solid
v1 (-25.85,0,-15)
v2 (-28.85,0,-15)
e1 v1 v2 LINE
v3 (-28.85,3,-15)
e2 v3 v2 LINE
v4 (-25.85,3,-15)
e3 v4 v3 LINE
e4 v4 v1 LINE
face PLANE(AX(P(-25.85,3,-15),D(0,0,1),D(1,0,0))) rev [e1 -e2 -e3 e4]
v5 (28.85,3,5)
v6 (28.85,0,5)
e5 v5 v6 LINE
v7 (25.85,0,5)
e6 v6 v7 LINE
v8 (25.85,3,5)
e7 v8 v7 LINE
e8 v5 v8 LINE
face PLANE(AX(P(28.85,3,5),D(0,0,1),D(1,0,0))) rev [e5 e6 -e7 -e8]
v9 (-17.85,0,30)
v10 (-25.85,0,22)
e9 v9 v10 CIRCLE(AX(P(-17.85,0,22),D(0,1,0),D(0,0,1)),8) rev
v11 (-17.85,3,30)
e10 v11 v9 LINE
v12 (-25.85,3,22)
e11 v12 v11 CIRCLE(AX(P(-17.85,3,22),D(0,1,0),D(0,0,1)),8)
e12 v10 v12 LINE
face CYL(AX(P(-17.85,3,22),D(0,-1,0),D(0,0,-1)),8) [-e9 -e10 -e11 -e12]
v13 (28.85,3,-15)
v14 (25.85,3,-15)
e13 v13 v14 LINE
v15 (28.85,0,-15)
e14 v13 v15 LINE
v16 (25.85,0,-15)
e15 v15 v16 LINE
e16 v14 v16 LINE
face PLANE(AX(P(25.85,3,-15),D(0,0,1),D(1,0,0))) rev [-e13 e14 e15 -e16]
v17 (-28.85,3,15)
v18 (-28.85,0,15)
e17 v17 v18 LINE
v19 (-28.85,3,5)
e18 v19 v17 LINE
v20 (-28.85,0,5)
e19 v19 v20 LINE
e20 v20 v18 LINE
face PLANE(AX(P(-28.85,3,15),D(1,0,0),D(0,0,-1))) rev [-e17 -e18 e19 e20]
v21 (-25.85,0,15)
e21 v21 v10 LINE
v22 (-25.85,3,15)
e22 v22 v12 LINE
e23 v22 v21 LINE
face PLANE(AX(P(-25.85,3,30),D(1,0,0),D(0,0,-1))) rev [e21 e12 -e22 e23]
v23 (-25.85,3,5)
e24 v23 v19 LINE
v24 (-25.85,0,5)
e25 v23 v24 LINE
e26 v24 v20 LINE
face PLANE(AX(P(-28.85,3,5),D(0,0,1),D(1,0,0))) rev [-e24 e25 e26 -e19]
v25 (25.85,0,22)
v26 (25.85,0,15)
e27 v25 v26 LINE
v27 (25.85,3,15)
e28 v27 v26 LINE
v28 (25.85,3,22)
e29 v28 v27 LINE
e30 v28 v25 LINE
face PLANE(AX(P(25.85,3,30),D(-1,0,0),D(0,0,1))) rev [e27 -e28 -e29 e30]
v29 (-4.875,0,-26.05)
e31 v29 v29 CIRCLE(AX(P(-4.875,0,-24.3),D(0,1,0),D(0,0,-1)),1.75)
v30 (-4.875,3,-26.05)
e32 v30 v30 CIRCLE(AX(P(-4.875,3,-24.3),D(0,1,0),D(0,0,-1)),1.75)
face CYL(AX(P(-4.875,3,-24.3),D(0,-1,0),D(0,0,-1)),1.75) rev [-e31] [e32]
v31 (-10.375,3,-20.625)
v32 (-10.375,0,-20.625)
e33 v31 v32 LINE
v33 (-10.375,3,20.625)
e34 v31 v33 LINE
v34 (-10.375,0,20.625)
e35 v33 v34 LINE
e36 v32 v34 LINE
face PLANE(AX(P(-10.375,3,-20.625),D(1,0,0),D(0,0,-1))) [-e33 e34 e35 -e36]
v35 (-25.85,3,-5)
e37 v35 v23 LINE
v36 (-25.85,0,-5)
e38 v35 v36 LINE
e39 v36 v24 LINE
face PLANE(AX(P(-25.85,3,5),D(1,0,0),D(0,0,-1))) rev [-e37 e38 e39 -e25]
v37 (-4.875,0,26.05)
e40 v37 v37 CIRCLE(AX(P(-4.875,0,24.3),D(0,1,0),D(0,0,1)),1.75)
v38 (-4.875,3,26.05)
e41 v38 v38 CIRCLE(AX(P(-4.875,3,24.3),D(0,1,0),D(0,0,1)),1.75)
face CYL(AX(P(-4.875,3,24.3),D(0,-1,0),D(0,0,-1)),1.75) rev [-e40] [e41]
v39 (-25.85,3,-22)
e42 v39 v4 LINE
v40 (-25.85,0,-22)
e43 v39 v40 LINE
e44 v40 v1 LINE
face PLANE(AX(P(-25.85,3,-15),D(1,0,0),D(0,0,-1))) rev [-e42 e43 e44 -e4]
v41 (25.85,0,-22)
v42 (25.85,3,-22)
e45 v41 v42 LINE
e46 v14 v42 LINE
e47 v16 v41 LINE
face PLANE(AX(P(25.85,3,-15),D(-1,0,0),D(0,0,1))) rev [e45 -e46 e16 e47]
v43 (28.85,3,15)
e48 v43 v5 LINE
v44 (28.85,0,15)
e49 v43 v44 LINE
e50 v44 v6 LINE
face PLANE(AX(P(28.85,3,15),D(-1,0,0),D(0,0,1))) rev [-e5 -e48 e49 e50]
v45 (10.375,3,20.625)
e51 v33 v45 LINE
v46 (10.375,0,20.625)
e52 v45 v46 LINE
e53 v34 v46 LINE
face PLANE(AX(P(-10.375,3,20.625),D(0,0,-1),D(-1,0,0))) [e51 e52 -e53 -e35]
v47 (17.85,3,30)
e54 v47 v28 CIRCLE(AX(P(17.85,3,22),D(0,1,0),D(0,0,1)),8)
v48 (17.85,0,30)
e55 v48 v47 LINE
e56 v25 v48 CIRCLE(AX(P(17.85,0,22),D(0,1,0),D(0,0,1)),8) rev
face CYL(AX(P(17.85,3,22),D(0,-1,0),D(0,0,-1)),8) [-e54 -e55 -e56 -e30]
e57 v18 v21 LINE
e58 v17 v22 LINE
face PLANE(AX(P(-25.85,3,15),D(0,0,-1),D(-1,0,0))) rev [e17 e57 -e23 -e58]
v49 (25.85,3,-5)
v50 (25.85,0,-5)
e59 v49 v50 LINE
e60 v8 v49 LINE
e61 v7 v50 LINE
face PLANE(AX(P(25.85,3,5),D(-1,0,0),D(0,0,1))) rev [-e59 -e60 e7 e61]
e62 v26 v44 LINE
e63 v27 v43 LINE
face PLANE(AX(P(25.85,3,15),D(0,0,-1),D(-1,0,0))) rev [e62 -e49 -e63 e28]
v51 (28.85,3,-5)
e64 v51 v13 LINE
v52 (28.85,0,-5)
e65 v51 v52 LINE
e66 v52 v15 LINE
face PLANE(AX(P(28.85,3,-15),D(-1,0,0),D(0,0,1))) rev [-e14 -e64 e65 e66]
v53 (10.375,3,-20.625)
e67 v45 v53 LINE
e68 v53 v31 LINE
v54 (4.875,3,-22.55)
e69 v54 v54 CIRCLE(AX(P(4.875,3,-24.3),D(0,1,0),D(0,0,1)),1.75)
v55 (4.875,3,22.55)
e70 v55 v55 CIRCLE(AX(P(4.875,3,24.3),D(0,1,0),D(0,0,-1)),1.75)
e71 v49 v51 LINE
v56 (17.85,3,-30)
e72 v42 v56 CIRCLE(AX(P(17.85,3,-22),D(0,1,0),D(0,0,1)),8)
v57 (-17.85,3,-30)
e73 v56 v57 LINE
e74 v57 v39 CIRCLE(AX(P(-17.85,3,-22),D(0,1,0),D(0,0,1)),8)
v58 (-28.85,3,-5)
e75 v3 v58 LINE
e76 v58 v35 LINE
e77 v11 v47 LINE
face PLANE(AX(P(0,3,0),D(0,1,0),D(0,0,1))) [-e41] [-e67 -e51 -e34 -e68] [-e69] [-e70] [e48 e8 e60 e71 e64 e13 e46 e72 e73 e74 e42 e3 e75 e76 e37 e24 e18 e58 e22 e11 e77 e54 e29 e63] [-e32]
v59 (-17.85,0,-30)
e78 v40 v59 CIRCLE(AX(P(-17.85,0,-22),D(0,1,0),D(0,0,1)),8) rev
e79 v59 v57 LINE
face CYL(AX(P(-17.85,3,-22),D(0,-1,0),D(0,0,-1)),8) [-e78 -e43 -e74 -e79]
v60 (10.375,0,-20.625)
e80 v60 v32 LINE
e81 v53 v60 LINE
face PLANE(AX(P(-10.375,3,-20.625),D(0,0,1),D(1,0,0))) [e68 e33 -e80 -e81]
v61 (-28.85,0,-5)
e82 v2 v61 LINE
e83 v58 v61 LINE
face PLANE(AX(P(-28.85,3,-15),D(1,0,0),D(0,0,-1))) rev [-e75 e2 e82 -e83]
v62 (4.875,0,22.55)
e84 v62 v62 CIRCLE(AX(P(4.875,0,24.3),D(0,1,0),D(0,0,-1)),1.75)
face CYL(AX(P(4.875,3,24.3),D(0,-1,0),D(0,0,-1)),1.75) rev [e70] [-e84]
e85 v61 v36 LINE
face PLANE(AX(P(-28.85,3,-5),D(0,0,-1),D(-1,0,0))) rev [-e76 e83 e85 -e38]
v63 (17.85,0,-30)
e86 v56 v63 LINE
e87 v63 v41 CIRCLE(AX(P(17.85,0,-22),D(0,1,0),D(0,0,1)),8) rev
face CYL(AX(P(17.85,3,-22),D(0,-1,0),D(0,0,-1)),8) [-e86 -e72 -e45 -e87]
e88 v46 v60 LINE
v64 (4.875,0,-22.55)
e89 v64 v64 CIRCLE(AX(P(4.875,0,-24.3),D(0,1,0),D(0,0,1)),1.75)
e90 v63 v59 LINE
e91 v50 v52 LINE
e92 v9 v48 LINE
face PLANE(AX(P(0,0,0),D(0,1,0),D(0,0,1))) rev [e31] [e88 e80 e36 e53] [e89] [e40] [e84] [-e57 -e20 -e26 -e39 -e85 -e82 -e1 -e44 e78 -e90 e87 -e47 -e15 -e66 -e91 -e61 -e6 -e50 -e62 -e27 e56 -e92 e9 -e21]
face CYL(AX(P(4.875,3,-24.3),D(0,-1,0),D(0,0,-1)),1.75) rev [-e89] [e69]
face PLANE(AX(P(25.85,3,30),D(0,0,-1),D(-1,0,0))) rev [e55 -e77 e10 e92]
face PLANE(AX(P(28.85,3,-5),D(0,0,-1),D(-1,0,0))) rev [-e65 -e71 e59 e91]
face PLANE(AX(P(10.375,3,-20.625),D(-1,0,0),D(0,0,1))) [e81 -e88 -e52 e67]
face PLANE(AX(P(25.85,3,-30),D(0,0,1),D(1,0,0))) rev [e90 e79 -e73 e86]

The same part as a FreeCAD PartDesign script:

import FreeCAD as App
import Part
import Sketcher
from FreeCAD import Vector


def edges_at(feature, points):
    """Names of the edges that pass closest to the given points."""
    edges = feature.Shape.Edges
    near = lambda p: min(range(len(edges)), key=lambda i: edges[i].distToShape(Part.Vertex(*p))[0])
    return sorted({f"Edge{near(p) + 1}" for p in points})


def add_polygon(sketch, points):
    """Adds a closed chain of lines whose ends are joined by coincident constraints."""
    first, n = sketch.GeometryCount, len(points)
    for a, b in zip(points, points[1:] + points[:1]):
        sketch.addGeometry(Part.LineSegment(App.Vector(*a, 0), App.Vector(*b, 0)), False)
    for i in range(n):
        sketch.addConstraint(Sketcher.Constraint("Coincident", first + i, 2, first + (i + 1) % n, 1))

doc = App.newDocument("Part")
body = doc.addObject("PartDesign::Body", "Body")

sketch1 = doc.addObject("Sketcher::SketchObject", "Sketch")
body.addObject(sketch1)
sketch1.AttachmentSupport = (doc.XZ_Plane, [""])
sketch1.MapMode = "FlatFace"
add_polygon(sketch1, [(-25.85, 30), (25.85, 30), (25.85, 15), (28.85, 15), (28.85, 5), (25.85, 5), (25.85, -5), (28.85, -5), (28.85, -15), (25.85, -15), (25.85, -30), (-25.85, -30), (-25.85, -15), (-28.85, -15), (-28.85, -5), (-25.85, -5), (-25.85, 5), (-28.85, 5), (-28.85, 15), (-25.85, 15)])
sketch1.addGeometry(Part.Circle(Vector(4.875, 24.3, 0), Vector(0, 0, 1), 1.75), False)
sketch1.addGeometry(Part.Circle(Vector(-4.875, 24.3, 0), Vector(0, 0, 1), 1.75), False)
sketch1.addGeometry(Part.Circle(Vector(4.875, -24.3, 0), Vector(0, 0, 1), 1.75), False)
add_polygon(sketch1, [(-10.375, 20.625), (-10.375, -20.625), (10.375, -20.625), (10.375, 20.625)])
sketch1.addGeometry(Part.Circle(Vector(-4.875, -24.3, 0), Vector(0, 0, 1), 1.75), False)
sketch1.addConstraint([
    Sketcher.Constraint("Horizontal", 0),
    Sketcher.Constraint("Vertical", 1),
    Sketcher.Constraint("Horizontal", 2),
    Sketcher.Constraint("Vertical", 3),
    Sketcher.Constraint("Horizontal", 4),
    Sketcher.Constraint("Vertical", 5),
    Sketcher.Constraint("Horizontal", 6),
    Sketcher.Constraint("Vertical", 7),
    Sketcher.Constraint("Horizontal", 8),
    Sketcher.Constraint("Vertical", 9),
    Sketcher.Constraint("Horizontal", 10),
    Sketcher.Constraint("Vertical", 11),
    Sketcher.Constraint("Horizontal", 12),
    Sketcher.Constraint("Vertical", 13),
    Sketcher.Constraint("Horizontal", 14),
    Sketcher.Constraint("Vertical", 15),
    Sketcher.Constraint("Horizontal", 16),
    Sketcher.Constraint("Vertical", 17),
    Sketcher.Constraint("Horizontal", 18),
    Sketcher.Constraint("Vertical", 19),
    Sketcher.Constraint("Vertical", 23),
    Sketcher.Constraint("Horizontal", 24),
    Sketcher.Constraint("Vertical", 25),
    Sketcher.Constraint("Horizontal", 26),
    Sketcher.Constraint("Equal", 20, 21),
    Sketcher.Constraint("Equal", 21, 22),
    Sketcher.Constraint("Equal", 22, 27),
    Sketcher.Constraint("Symmetric", 21, 3, 22, 3, -1, 1),
    Sketcher.Constraint("Symmetric", 20, 3, 27, 3, -1, 1),
    Sketcher.Constraint("Symmetric", 0, 2, 10, 2, -1, 1),
    Sketcher.Constraint("Symmetric", 2, 2, 12, 2, -1, 1),
    Sketcher.Constraint("Symmetric", 4, 2, 14, 2, -1, 1),
    Sketcher.Constraint("Symmetric", 6, 2, 16, 2, -1, 1),
    Sketcher.Constraint("Symmetric", 8, 2, 18, 2, -1, 1),
    Sketcher.Constraint("Symmetric", 23, 2, 25, 2, -1, 1),
    Sketcher.Constraint("Symmetric", 20, 3, 21, 3, -2),
    Sketcher.Constraint("Symmetric", 8, 2, 11, 2, -2),
    Sketcher.Constraint("Symmetric", 6, 2, 13, 2, -2),
    Sketcher.Constraint("Vertical", 1, 2, 4, 2),
    Sketcher.Constraint("Equal", 3, 5),
    Sketcher.Constraint("Diameter", 20, 3.5),
    Sketcher.Constraint("DistanceX", 2, 1, 2, 2, 3.0),
    Sketcher.Constraint("DistanceY", 1, 2, 1, 1, 15.0),
    Sketcher.Constraint("DistanceY", 3, 2, 3, 1, 10.0),
    Sketcher.Constraint("DistanceX", 0, 1, 0, 2, 51.7),
    Sketcher.Constraint("DistanceX", 24, 1, 24, 2, 20.75),
    Sketcher.Constraint("DistanceY", 23, 2, 23, 1, 41.25),
    Sketcher.Constraint("DistanceY", -1, 1, 20, 3, 24.3),
    Sketcher.Constraint("DistanceX", 23, 2, 27, 3, 5.5),
])
pad1 = doc.addObject("PartDesign::Pad", "Pad")
body.addObject(pad1)
pad1.Profile = sketch1
pad1.Length = 3
pad1.Reversed = True
doc.recompute()

fillet = doc.addObject("PartDesign::Fillet", "Fillet")
body.addObject(fillet)
fillet.Base = (pad1, edges_at(pad1, [
    (-25.85, 1.5, -30),
    (25.85, 1.5, -30),
    (25.85, 1.5, 30),
    (-25.85, 1.5, 30),
]))
fillet.Radius = 8

doc.recompute()
